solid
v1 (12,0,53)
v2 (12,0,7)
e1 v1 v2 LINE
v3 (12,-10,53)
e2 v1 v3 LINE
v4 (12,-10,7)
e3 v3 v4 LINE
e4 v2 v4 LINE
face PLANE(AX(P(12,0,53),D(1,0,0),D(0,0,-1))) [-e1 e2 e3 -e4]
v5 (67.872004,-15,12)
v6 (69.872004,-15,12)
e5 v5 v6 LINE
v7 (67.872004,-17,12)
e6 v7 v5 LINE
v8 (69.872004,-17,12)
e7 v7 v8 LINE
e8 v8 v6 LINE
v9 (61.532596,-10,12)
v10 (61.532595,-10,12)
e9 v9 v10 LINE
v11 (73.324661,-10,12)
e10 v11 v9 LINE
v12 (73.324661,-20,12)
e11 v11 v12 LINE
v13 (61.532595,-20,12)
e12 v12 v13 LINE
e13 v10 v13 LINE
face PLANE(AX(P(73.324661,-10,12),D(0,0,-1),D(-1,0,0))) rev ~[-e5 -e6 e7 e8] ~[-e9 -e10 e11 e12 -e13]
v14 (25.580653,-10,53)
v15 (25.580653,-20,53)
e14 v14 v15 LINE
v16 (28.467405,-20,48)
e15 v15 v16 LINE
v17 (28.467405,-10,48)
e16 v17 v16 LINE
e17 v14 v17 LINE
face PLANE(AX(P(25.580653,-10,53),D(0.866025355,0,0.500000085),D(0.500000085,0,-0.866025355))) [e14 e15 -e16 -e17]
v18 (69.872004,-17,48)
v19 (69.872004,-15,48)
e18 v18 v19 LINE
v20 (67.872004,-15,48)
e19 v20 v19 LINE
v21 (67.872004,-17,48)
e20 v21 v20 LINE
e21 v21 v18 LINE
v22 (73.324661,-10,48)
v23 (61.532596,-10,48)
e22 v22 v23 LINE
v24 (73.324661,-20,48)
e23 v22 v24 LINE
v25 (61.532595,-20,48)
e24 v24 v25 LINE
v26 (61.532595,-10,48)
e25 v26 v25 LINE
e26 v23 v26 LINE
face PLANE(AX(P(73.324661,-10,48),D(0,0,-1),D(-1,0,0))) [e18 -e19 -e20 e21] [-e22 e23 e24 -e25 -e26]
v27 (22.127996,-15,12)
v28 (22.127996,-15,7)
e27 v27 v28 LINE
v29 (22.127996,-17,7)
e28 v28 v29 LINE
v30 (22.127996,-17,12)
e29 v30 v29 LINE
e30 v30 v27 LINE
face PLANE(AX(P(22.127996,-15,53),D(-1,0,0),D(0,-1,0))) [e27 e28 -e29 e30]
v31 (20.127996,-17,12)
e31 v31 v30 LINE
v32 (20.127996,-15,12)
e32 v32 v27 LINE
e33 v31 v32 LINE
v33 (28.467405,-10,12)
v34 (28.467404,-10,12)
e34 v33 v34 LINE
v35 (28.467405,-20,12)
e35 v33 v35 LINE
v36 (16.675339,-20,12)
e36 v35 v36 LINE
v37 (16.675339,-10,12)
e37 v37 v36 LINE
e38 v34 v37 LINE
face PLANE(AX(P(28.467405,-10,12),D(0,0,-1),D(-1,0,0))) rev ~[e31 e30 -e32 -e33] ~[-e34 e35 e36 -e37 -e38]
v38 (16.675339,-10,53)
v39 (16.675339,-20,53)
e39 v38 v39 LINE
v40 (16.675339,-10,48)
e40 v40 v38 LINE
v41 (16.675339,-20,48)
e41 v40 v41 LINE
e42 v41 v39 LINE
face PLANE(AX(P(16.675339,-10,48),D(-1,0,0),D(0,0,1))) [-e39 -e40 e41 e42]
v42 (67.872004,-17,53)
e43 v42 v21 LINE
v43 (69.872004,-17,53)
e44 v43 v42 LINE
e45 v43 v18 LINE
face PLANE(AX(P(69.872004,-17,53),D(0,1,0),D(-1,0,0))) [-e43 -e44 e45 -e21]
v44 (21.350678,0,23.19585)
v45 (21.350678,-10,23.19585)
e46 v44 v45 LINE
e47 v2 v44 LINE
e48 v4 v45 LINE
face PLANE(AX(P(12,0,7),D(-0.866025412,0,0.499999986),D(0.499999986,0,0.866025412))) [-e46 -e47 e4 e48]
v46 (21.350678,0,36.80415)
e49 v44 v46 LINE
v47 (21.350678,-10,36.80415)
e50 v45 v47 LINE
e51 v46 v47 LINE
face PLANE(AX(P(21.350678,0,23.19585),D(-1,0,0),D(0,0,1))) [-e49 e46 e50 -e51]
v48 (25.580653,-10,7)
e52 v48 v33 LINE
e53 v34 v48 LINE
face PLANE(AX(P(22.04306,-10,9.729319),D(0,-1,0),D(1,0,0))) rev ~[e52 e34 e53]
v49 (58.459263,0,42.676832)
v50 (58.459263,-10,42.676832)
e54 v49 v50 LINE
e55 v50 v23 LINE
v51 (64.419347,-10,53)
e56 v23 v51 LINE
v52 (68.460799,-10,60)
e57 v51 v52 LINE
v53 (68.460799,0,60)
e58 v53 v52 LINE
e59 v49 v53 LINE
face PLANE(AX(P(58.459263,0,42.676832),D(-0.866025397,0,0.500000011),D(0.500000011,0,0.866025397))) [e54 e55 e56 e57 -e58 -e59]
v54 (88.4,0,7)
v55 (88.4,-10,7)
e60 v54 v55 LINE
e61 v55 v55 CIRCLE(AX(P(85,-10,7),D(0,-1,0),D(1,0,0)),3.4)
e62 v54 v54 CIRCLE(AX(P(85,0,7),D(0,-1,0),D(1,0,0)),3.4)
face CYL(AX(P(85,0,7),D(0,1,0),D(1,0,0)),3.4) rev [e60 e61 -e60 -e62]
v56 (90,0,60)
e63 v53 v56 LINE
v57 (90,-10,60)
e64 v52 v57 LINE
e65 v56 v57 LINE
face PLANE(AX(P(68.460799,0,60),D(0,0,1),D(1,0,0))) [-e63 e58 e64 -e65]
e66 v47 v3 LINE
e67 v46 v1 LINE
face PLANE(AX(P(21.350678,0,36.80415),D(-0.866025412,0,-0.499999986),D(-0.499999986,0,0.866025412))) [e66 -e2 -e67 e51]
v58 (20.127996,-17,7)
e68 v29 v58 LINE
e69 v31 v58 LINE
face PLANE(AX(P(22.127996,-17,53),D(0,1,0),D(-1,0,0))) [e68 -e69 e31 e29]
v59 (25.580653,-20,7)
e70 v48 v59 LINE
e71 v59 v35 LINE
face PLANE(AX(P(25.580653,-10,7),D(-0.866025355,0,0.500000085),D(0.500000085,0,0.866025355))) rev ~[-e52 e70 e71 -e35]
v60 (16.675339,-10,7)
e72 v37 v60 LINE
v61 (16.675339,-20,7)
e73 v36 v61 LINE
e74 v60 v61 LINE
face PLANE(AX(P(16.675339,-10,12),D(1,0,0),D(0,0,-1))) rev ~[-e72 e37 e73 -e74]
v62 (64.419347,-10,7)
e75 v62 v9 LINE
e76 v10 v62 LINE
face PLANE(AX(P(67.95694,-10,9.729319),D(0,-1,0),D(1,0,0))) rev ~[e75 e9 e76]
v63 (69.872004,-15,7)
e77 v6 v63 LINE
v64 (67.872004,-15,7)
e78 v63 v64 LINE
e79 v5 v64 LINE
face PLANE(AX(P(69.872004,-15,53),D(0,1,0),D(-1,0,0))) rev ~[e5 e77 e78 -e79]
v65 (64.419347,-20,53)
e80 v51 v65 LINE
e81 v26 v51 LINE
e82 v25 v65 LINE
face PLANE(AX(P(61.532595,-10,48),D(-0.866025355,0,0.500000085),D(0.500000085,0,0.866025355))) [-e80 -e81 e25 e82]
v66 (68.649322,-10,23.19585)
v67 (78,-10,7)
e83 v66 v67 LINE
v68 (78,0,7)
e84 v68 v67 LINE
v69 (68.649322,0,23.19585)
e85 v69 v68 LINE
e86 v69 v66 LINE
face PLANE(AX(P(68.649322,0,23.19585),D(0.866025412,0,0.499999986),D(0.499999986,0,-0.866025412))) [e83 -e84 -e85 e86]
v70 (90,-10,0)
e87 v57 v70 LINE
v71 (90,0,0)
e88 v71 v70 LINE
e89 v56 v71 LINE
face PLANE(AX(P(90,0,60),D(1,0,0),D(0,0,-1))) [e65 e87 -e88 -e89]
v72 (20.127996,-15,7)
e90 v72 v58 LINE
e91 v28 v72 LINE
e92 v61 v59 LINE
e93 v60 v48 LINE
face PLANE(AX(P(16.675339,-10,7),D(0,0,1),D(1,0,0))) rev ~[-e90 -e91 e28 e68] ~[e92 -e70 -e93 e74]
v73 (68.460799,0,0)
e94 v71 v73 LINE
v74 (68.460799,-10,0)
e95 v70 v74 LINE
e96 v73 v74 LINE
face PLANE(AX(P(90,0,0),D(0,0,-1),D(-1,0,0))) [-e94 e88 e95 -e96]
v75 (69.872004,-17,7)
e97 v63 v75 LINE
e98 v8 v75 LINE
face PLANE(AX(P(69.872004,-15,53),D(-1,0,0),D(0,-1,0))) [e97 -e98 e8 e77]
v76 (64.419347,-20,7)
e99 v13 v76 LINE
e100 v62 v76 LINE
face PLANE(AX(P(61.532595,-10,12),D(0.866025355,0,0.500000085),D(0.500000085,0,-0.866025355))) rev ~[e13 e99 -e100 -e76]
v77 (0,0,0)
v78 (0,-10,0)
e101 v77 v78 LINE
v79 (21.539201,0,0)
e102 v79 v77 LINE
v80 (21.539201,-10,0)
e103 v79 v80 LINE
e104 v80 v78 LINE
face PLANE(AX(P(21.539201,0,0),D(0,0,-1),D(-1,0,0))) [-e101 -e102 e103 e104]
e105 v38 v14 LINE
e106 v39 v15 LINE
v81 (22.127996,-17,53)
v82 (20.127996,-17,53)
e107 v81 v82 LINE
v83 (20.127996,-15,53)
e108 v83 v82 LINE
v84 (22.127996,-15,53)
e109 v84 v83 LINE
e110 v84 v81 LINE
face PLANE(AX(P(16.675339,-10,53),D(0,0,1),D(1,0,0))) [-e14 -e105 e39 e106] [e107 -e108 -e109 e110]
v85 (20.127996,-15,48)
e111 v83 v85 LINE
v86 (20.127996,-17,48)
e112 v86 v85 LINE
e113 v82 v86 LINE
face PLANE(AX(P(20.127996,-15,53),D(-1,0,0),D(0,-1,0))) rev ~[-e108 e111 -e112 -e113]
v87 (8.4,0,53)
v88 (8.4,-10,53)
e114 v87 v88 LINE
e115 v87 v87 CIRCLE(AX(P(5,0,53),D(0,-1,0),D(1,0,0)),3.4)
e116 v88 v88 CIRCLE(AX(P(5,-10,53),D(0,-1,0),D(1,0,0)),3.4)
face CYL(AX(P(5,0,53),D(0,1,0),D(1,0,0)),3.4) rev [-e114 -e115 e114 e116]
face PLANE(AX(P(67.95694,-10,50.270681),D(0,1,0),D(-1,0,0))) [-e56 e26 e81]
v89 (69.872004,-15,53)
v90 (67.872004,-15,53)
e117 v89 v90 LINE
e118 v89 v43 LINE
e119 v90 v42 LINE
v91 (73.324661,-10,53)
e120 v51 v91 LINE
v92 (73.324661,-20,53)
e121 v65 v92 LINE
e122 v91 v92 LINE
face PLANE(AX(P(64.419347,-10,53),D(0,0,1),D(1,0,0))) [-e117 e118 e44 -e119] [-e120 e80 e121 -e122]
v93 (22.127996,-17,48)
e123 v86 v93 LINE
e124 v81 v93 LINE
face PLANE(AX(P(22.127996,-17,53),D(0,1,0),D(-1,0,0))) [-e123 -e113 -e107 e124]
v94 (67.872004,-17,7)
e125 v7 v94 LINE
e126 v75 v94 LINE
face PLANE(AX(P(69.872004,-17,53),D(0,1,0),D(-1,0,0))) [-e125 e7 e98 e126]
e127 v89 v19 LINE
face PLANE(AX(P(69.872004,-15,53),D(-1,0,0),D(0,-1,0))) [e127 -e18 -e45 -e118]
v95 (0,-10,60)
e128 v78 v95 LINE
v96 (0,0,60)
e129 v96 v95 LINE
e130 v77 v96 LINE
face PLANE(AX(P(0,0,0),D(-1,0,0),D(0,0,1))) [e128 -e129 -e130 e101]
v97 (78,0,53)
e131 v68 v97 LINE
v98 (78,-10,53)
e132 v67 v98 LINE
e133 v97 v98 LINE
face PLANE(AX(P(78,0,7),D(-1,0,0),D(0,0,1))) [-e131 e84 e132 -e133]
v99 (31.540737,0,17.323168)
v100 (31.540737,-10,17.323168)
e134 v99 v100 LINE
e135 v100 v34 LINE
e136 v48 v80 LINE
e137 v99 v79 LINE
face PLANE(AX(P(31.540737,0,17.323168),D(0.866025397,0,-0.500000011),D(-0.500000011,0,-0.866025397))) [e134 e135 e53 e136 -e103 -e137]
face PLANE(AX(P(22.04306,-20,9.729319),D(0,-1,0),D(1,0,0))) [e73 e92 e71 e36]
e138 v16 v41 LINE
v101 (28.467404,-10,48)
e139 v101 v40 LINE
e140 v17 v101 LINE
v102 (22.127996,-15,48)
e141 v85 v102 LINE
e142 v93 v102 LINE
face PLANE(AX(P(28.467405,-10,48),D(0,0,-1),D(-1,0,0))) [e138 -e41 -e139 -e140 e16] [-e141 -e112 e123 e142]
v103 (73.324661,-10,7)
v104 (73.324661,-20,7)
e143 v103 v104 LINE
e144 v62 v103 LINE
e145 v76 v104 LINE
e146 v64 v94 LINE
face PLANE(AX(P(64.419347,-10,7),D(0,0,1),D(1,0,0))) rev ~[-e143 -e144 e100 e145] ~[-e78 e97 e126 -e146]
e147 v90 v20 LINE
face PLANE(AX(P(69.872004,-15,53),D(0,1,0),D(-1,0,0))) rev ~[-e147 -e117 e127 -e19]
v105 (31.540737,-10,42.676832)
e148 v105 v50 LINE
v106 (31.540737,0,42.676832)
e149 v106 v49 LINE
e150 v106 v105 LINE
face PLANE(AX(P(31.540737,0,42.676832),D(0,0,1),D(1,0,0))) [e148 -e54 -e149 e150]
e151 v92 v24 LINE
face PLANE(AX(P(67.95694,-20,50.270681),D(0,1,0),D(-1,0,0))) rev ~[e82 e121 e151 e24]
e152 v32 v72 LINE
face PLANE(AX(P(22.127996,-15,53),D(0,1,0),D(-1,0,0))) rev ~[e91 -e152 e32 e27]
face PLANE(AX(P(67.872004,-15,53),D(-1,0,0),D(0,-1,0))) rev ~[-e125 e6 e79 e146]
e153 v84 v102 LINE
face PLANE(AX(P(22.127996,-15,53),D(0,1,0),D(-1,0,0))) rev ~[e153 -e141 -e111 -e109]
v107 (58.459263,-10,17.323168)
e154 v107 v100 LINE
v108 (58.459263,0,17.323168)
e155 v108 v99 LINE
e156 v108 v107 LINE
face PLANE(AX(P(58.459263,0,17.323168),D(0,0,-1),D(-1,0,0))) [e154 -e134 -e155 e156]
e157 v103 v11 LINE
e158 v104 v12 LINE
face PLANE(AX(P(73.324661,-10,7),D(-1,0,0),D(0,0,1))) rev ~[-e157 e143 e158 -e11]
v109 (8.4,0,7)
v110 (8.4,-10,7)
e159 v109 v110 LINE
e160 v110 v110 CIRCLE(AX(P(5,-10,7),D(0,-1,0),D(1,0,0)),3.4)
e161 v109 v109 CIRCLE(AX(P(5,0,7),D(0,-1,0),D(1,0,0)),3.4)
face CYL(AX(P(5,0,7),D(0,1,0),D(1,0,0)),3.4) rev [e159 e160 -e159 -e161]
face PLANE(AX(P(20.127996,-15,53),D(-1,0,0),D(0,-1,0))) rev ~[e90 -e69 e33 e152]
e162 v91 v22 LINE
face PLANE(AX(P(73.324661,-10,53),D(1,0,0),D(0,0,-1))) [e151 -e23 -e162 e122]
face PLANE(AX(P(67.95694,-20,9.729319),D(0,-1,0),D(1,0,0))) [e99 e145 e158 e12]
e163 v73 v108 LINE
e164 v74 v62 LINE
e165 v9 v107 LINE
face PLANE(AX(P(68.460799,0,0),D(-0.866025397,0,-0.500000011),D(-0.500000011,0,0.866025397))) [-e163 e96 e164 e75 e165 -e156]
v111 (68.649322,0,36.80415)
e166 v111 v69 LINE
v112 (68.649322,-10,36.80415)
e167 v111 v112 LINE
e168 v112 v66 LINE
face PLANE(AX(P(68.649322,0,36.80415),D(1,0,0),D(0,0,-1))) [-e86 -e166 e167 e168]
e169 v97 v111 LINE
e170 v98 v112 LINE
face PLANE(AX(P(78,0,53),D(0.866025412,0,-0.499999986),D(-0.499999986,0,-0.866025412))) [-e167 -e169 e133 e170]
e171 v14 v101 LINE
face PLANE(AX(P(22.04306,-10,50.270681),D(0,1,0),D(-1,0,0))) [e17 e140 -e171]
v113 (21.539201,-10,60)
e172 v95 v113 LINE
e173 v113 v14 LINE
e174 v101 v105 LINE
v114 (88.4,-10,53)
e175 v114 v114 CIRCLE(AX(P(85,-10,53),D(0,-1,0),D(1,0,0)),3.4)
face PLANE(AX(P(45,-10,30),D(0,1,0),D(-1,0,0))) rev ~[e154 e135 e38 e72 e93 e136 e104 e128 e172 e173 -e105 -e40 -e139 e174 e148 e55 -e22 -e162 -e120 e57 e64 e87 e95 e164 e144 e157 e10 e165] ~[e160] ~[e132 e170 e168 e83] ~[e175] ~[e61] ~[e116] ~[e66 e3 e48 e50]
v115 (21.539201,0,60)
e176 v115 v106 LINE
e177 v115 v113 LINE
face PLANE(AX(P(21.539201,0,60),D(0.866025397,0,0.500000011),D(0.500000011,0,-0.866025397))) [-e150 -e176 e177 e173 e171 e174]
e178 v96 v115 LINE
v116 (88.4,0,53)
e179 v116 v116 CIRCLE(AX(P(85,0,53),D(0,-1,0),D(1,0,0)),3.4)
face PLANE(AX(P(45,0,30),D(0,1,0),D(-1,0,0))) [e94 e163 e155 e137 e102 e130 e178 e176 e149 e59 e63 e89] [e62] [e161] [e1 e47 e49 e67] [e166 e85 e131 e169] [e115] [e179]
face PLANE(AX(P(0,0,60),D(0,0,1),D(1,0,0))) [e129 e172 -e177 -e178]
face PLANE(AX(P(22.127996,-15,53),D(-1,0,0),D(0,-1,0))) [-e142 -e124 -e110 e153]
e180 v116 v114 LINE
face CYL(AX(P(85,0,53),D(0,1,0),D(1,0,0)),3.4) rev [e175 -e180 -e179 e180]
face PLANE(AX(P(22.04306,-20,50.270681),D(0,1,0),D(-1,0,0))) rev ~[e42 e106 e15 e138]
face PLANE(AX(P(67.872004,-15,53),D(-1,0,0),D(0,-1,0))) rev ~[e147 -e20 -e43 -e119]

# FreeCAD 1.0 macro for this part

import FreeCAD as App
import Part
import Sketcher
from FreeCAD import Vector
Q = App.Units.Quantity


def add_polygon(sketch, points):
    """Adds a closed chain of lines whose ends are joined by coincident constraints."""
    first, n = sketch.GeometryCount, len(points)
    for a, b in zip(points, points[1:] + points[:1]):
        sketch.addGeometry(Part.LineSegment(App.Vector(*a, 0), App.Vector(*b, 0)), False)
    for i in range(n):
        sketch.addConstraint(Sketcher.Constraint("Coincident", first + i, 2, first + (i + 1) % n, 1))

doc = App.newDocument("Part")
body = doc.addObject("PartDesign::Body", "Body")

sketch1 = doc.addObject("Sketcher::SketchObject", "Sketch")
body.addObject(sketch1)
sketch1.AttachmentSupport = (doc.XZ_Plane, [""])
sketch1.MapMode = "FlatFace"
add_polygon(sketch1, [(21.5, 60), (0, 60), (0, 0), (21.5, 0), (31.5, 17.3), (58.5, 17.3), (68.5, 0), (90, 0), (90, 60), (68.5, 60), (58.5, 42.7), (31.5, 42.7)])
sketch1.addGeometry(Part.Circle(Vector(85, 7, 0), Vector(0, 0, 1), 3.4), False)
sketch1.addGeometry(Part.Circle(Vector(5, 7, 0), Vector(0, 0, 1), 3.4), False)
add_polygon(sketch1, [(78, 53), (78, 7), (68.6, 23.2), (68.6, 36.8)])
sketch1.addGeometry(Part.Circle(Vector(85, 53, 0), Vector(0, 0, 1), 3.4), False)
add_polygon(sketch1, [(12, 53), (21.4, 36.8), (21.4, 23.2), (12, 7)])
sketch1.addGeometry(Part.Circle(Vector(5, 53, 0), Vector(0, 0, 1), 3.4), False)
sketch1.addConstraint([
    Sketcher.Constraint("Horizontal", 0),
    Sketcher.Constraint("Vertical", 1),
    Sketcher.Constraint("Horizontal", 2),
    Sketcher.Constraint("Horizontal", 4),
    Sketcher.Constraint("Horizontal", 6),
    Sketcher.Constraint("Vertical", 7),
    Sketcher.Constraint("Horizontal", 8),
    Sketcher.Constraint("Horizontal", 10),
    Sketcher.Constraint("Vertical", 14),
    Sketcher.Constraint("Vertical", 16),
    Sketcher.Constraint("Vertical", 20),
    Sketcher.Constraint("Vertical", 22),
    Sketcher.Constraint("Coincident", 1, 2, -1, 1),
    Sketcher.Constraint("Equal", 12, 13),
    Sketcher.Constraint("Equal", 13, 18),
    Sketcher.Constraint("Equal", 18, 23),
    Sketcher.Constraint("PointOnObject", 5, 2, -1),
    Sketcher.Constraint("Parallel", 3, 9),
    Sketcher.Constraint("Parallel", 5, 11),
    Sketcher.Constraint("Parallel", 11, 15),
    Sketcher.Constraint("Parallel", 9, 17),
    Sketcher.Constraint("Parallel", 15, 19),
    Sketcher.Constraint("Parallel", 17, 21),
    Sketcher.Constraint("Horizontal", 12, 3, 13, 3),
    Sketcher.Constraint("Horizontal", 18, 3, 23, 3),
    Sketcher.Constraint("Horizontal", 0, 2, 7, 2),
    Sketcher.Constraint("Horizontal", 13, 3, 14, 2),
    Sketcher.Constraint("Horizontal", 23, 3, 17, 2),
    Sketcher.Constraint("Horizontal", 16, 2, 19, 2),
    Sketcher.Constraint("Horizontal", 15, 2, 20, 2),
    Sketcher.Constraint("Horizontal", 14, 2, 21, 2),
    Sketcher.Constraint("Horizontal", 17, 2, 22, 2),
    Sketcher.Constraint("Vertical", 12, 3, 18, 3),
    Sketcher.Constraint("Vertical", 13, 3, 23, 3),
    Sketcher.Constraint("Vertical", 5, 2, 8, 2),
    Sketcher.Constraint("Vertical", 4, 2, 9, 2),
    Sketcher.Constraint("Vertical", 3, 2, 10, 2),
    Sketcher.Constraint("Equal", 2, 6),
    Sketcher.Constraint("Diameter", 12, 6.8),
    Sketcher.Constraint("DistanceY", 1, 2, 1, 1, 60.0),
    Sketcher.Constraint("DistanceY", 14, 2, 14, 1, 46.0),
    Sketcher.Constraint("Angle", 3, Q("59.999999 deg")),
    Sketcher.Constraint("DistanceX", -1, 1, 12, 3, 85.0),
    Sketcher.Constraint("DistanceY", -1, 1, 12, 3, 7.0),
    Sketcher.Constraint("DistanceX", -1, 1, 13, 3, 5.0),
    Sketcher.Constraint("DistanceX", -1, 1, 6, 2, 90.0),
    Sketcher.Constraint("DistanceX", -1, 1, 14, 2, 78.0),
    Sketcher.Constraint("DistanceX", -1, 1, 21, 2, 12.0),
    Sketcher.Constraint("DistanceX", 0, 2, 0, 1, 21.539201),
    Sketcher.Constraint("DistanceY", 16, 1, 16, 2, 13.6083),
    Sketcher.Constraint("Distance", 3, 20.003072),
])
pad1 = doc.addObject("PartDesign::Pad", "Pad")
body.addObject(pad1)
pad1.Profile = sketch1
pad1.Length = 10

sketch2 = doc.addObject("Sketcher::SketchObject", "Sketch001")
body.addObject(sketch2)
sketch2.AttachmentSupport = (doc.XZ_Plane, [""])
sketch2.MapMode = "FlatFace"
sketch2.AttachmentOffset = App.Placement(Vector(0, 0, 10), App.Rotation())
add_polygon(sketch2, [(26, 53), (17, 53), (17, 48), (28, 48)])
add_polygon(sketch2, [(73, 53), (64, 53), (62, 48), (73, 48)])
add_polygon(sketch2, [(17, 12), (17, 7), (26, 7), (28, 12)])
add_polygon(sketch2, [(73, 12), (62, 12), (64, 7), (73, 7)])
sketch2.addConstraint([
    Sketcher.Constraint("Horizontal", 0),
    Sketcher.Constraint("Vertical", 1),
    Sketcher.Constraint("Horizontal", 2),
    Sketcher.Constraint("Horizontal", 4),
    Sketcher.Constraint("Horizontal", 6),
    Sketcher.Constraint("Vertical", 7),
    Sketcher.Constraint("Vertical", 8),
    Sketcher.Constraint("Horizontal", 9),
    Sketcher.Constraint("Horizontal", 11),
    Sketcher.Constraint("Horizontal", 12),
    Sketcher.Constraint("Horizontal", 14),
    Sketcher.Constraint("Vertical", 15),
    Sketcher.Constraint("Parallel", 5, 10),
    Sketcher.Constraint("Parallel", 3, 13),
    Sketcher.Constraint("Horizontal", 3, 2, 4, 2),
    Sketcher.Constraint("Horizontal", 2, 2, 5, 2),
    Sketcher.Constraint("Horizontal", 11, 2, 12, 2),
    Sketcher.Constraint("Horizontal", 9, 2, 13, 2),
    Sketcher.Constraint("Vertical", 1, 2, 8, 2),
    Sketcher.Constraint("Vertical", 3, 2, 9, 2),
    Sketcher.Constraint("Vertical", 2, 2, 10, 2),
    Sketcher.Constraint("Vertical", 5, 2, 12, 2),
    Sketcher.Constraint("Vertical", 4, 2, 13, 2),
    Sketcher.Constraint("Vertical", 7, 2, 14, 2),
    Sketcher.Constraint("Equal", 0, 4),
    Sketcher.Constraint("DistanceY", 1, 2, 1, 1, 5.0),
    Sketcher.Constraint("Angle", 3, Q("120.000006 deg")),
    Sketcher.Constraint("DistanceY", -1, 1, 0, 2, 53.0),
    Sketcher.Constraint("DistanceY", -1, 1, 8, 2, 7.0),
    Sketcher.Constraint("DistanceX", 0, 2, 0, 1, 8.905314),
    Sketcher.Constraint("DistanceX", -1, 1, 0, 2, 16.675339),
    Sketcher.Constraint("DistanceX", -1, 1, 6, 2, 73.324661),
])
pad2 = doc.addObject("PartDesign::Pad", "Pad001")
body.addObject(pad2)
pad2.Profile = sketch2
pad2.Length = 10

sketch3 = doc.addObject("Sketcher::SketchObject", "Sketch002")
body.addObject(sketch3)
sketch3.AttachmentSupport = (doc.XY_Plane, [""])
sketch3.MapMode = "FlatFace"
sketch3.AttachmentOffset = App.Placement(Vector(0, 0, 53), App.Rotation())
add_polygon(sketch3, [(22.1, -17), (22.1, -15), (20.1, -15), (20.1, -17)])
add_polygon(sketch3, [(69.9, -17), (69.9, -15), (67.9, -15), (67.9, -17)])
sketch3.addConstraint([
    Sketcher.Constraint("Vertical", 0),
    Sketcher.Constraint("Horizontal", 1),
    Sketcher.Constraint("Vertical", 2),
    Sketcher.Constraint("Horizontal", 3),
    Sketcher.Constraint("Vertical", 4),
    Sketcher.Constraint("Horizontal", 5),
    Sketcher.Constraint("Vertical", 6),
    Sketcher.Constraint("Horizontal", 7),
    Sketcher.Constraint("Horizontal", 1, 2, 4, 2),
    Sketcher.Constraint("Horizontal", 3, 2, 6, 2),
    Sketcher.Constraint("Equal", 3, 5),
    Sketcher.Constraint("Equal", 7, 0),
    Sketcher.Constraint("DistanceX", 1, 2, 1, 1, 2.0),
    Sketcher.Constraint("DistanceY", 0, 2, -1, 1, 15.0),
    Sketcher.Constraint("DistanceX", 0, 2, 4, 2, 47.744008),
    Sketcher.Constraint("DistanceX", -1, 1, 0, 2, 22.127996),
])
pocket1 = doc.addObject("PartDesign::Pocket", "Pocket")
body.addObject(pocket1)
pocket1.Profile = sketch3
pocket1.Type = "ThroughAll"

doc.recompute()
